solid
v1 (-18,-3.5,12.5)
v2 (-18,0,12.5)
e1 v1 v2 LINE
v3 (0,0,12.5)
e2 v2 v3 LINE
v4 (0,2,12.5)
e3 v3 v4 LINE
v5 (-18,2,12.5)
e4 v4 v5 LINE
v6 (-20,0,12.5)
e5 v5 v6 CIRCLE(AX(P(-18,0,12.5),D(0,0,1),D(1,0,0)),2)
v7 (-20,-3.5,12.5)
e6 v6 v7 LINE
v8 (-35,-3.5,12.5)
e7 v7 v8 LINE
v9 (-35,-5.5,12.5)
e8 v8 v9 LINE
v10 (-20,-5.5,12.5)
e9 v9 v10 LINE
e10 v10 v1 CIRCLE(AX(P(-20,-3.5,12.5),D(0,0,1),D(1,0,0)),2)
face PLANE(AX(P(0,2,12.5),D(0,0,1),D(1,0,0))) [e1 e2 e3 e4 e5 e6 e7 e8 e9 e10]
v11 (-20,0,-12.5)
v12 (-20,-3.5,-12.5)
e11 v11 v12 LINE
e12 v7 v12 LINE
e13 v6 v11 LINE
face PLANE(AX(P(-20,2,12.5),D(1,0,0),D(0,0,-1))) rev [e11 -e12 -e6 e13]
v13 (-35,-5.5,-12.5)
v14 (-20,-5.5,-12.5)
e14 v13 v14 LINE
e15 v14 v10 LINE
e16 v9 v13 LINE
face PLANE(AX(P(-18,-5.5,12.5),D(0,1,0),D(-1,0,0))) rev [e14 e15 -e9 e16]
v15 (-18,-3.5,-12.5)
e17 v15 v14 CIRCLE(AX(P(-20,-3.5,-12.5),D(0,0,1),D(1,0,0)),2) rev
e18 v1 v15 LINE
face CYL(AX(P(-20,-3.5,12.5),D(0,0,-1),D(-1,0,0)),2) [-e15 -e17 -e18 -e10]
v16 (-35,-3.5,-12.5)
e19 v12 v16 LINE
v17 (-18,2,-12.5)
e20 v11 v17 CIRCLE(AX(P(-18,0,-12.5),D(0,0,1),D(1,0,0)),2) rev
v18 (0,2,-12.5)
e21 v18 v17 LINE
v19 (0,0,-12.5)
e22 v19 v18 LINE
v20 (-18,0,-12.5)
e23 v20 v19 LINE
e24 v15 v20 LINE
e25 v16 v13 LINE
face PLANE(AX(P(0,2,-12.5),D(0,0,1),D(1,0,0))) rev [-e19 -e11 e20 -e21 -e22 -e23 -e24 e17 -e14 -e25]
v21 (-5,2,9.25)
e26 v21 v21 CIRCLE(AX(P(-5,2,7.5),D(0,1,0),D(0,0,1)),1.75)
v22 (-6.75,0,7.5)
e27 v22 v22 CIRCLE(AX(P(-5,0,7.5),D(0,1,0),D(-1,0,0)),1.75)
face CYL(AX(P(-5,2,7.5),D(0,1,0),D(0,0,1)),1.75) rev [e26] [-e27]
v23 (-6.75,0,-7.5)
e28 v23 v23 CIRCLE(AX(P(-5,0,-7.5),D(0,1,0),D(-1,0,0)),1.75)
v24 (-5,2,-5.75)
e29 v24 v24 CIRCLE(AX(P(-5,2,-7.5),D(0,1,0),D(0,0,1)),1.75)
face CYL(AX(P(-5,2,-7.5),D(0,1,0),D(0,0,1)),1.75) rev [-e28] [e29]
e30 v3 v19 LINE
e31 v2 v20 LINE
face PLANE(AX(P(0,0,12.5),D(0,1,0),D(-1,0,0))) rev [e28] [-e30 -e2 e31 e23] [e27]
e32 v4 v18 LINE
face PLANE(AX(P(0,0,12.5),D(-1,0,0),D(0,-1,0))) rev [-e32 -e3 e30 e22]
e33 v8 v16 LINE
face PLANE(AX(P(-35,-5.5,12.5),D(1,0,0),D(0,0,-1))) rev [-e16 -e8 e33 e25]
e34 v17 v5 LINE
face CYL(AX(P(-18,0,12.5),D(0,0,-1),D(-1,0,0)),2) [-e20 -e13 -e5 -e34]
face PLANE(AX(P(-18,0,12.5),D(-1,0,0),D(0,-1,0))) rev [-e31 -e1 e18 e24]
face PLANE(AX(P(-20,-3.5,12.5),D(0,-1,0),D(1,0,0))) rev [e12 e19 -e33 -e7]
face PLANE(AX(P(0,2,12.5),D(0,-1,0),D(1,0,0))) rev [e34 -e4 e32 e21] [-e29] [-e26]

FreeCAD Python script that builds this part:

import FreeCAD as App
import Part
import Sketcher

V = App.Vector


def edges_at(feature, points):
    """Names of the edges that pass closest to the given points."""
    edges = feature.Shape.Edges
    near = lambda p: min(range(len(edges)), key=lambda i: edges[i].distToShape(Part.Vertex(*p))[0])
    return sorted({f"Edge{near(p) + 1}" for p in points})


def add_polygon(sketch, points):
    """Adds a closed chain of lines whose ends are joined by coincident constraints."""
    first, n = sketch.GeometryCount, len(points)
    for a, b in zip(points, points[1:] + points[:1]):
        sketch.addGeometry(Part.LineSegment(App.Vector(*a, 0), App.Vector(*b, 0)), False)
    for i in range(n):
        sketch.addConstraint(Sketcher.Constraint("Coincident", first + i, 2, first + (i + 1) % n, 1))

doc = App.newDocument("Part")
body = doc.addObject("PartDesign::Body", "Body")

sketch1 = body.newObject("Sketcher::SketchObject", "Sketch")
sketch1.AttachmentSupport = (doc.getObject("XY_Plane"), [""])
sketch1.MapMode = "FlatFace"
add_polygon(sketch1, [(-18, 0), (0, 0), (0, 2), (-20, 2), (-20, -3.5), (-35, -3.5), (-35, -5.5), (-18, -5.5)])
sketch1.addConstraint([
    Sketcher.Constraint("Horizontal", 0),
    Sketcher.Constraint("Vertical", 1),
    Sketcher.Constraint("Horizontal", 2),
    Sketcher.Constraint("Vertical", 3),
    Sketcher.Constraint("Horizontal", 4),
    Sketcher.Constraint("Vertical", 5),
    Sketcher.Constraint("Horizontal", 6),
    Sketcher.Constraint("Vertical", 7),
    Sketcher.Constraint("Coincident", 0, 2, -1, 1),
    Sketcher.Constraint("Equal", 1, 5),
    Sketcher.Constraint("DistanceX", 0, 1, 0, 2, 18.0),
    Sketcher.Constraint("DistanceX", 2, 2, 2, 1, 20.0),
    Sketcher.Constraint("DistanceX", 4, 2, 4, 1, 15.0),
    Sketcher.Constraint("DistanceY", 1, 1, 1, 2, 2.0),
    Sketcher.Constraint("DistanceY", 3, 2, 3, 1, 5.5),
])
pad1 = body.newObject("PartDesign::Pad", "Pad")
pad1.Profile = sketch1
pad1.Length = 25
pad1.Midplane = True
doc.recompute()

fillet = body.newObject("PartDesign::Fillet", "Fillet")
fillet.Base = (pad1, edges_at(pad1, [(-18, -5.5, 0), (-20, 2, 0)]))
fillet.Radius = 2

sketch2 = body.newObject("Sketcher::SketchObject", "Sketch001")
sketch2.AttachmentSupport = (doc.getObject("XZ_Plane"), [""])
sketch2.MapMode = "FlatFace"
sketch2.AttachmentOffset = App.Placement(V(0, 0, -2), App.Rotation())
sketch2.addGeometry([
    Part.Circle(V(-5, -7.5, 0), V(0, 0, 1), 1.8),
    Part.Circle(V(-5, 7.5, 0), V(0, 0, 1), 1.8),
], False)
sketch2.addConstraint([
    Sketcher.Constraint("Equal", 0, 1),
    Sketcher.Constraint("Symmetric", 0, 3, 1, 3, -1),
    Sketcher.Constraint("Diameter", 0, 3.5),
    Sketcher.Constraint("DistanceX", 0, 3, -1, 1, 5.0),
    Sketcher.Constraint("DistanceY", 0, 3, 1, 3, 15.0),
])
doc.recompute()
hole = body.newObject("PartDesign::Hole", "Hole")
hole.Profile = sketch2
hole.ThreadType = "None"
hole.Diameter = 3.5
hole.DepthType = "ThroughAll"
hole.Reversed = True

doc.recompute()
